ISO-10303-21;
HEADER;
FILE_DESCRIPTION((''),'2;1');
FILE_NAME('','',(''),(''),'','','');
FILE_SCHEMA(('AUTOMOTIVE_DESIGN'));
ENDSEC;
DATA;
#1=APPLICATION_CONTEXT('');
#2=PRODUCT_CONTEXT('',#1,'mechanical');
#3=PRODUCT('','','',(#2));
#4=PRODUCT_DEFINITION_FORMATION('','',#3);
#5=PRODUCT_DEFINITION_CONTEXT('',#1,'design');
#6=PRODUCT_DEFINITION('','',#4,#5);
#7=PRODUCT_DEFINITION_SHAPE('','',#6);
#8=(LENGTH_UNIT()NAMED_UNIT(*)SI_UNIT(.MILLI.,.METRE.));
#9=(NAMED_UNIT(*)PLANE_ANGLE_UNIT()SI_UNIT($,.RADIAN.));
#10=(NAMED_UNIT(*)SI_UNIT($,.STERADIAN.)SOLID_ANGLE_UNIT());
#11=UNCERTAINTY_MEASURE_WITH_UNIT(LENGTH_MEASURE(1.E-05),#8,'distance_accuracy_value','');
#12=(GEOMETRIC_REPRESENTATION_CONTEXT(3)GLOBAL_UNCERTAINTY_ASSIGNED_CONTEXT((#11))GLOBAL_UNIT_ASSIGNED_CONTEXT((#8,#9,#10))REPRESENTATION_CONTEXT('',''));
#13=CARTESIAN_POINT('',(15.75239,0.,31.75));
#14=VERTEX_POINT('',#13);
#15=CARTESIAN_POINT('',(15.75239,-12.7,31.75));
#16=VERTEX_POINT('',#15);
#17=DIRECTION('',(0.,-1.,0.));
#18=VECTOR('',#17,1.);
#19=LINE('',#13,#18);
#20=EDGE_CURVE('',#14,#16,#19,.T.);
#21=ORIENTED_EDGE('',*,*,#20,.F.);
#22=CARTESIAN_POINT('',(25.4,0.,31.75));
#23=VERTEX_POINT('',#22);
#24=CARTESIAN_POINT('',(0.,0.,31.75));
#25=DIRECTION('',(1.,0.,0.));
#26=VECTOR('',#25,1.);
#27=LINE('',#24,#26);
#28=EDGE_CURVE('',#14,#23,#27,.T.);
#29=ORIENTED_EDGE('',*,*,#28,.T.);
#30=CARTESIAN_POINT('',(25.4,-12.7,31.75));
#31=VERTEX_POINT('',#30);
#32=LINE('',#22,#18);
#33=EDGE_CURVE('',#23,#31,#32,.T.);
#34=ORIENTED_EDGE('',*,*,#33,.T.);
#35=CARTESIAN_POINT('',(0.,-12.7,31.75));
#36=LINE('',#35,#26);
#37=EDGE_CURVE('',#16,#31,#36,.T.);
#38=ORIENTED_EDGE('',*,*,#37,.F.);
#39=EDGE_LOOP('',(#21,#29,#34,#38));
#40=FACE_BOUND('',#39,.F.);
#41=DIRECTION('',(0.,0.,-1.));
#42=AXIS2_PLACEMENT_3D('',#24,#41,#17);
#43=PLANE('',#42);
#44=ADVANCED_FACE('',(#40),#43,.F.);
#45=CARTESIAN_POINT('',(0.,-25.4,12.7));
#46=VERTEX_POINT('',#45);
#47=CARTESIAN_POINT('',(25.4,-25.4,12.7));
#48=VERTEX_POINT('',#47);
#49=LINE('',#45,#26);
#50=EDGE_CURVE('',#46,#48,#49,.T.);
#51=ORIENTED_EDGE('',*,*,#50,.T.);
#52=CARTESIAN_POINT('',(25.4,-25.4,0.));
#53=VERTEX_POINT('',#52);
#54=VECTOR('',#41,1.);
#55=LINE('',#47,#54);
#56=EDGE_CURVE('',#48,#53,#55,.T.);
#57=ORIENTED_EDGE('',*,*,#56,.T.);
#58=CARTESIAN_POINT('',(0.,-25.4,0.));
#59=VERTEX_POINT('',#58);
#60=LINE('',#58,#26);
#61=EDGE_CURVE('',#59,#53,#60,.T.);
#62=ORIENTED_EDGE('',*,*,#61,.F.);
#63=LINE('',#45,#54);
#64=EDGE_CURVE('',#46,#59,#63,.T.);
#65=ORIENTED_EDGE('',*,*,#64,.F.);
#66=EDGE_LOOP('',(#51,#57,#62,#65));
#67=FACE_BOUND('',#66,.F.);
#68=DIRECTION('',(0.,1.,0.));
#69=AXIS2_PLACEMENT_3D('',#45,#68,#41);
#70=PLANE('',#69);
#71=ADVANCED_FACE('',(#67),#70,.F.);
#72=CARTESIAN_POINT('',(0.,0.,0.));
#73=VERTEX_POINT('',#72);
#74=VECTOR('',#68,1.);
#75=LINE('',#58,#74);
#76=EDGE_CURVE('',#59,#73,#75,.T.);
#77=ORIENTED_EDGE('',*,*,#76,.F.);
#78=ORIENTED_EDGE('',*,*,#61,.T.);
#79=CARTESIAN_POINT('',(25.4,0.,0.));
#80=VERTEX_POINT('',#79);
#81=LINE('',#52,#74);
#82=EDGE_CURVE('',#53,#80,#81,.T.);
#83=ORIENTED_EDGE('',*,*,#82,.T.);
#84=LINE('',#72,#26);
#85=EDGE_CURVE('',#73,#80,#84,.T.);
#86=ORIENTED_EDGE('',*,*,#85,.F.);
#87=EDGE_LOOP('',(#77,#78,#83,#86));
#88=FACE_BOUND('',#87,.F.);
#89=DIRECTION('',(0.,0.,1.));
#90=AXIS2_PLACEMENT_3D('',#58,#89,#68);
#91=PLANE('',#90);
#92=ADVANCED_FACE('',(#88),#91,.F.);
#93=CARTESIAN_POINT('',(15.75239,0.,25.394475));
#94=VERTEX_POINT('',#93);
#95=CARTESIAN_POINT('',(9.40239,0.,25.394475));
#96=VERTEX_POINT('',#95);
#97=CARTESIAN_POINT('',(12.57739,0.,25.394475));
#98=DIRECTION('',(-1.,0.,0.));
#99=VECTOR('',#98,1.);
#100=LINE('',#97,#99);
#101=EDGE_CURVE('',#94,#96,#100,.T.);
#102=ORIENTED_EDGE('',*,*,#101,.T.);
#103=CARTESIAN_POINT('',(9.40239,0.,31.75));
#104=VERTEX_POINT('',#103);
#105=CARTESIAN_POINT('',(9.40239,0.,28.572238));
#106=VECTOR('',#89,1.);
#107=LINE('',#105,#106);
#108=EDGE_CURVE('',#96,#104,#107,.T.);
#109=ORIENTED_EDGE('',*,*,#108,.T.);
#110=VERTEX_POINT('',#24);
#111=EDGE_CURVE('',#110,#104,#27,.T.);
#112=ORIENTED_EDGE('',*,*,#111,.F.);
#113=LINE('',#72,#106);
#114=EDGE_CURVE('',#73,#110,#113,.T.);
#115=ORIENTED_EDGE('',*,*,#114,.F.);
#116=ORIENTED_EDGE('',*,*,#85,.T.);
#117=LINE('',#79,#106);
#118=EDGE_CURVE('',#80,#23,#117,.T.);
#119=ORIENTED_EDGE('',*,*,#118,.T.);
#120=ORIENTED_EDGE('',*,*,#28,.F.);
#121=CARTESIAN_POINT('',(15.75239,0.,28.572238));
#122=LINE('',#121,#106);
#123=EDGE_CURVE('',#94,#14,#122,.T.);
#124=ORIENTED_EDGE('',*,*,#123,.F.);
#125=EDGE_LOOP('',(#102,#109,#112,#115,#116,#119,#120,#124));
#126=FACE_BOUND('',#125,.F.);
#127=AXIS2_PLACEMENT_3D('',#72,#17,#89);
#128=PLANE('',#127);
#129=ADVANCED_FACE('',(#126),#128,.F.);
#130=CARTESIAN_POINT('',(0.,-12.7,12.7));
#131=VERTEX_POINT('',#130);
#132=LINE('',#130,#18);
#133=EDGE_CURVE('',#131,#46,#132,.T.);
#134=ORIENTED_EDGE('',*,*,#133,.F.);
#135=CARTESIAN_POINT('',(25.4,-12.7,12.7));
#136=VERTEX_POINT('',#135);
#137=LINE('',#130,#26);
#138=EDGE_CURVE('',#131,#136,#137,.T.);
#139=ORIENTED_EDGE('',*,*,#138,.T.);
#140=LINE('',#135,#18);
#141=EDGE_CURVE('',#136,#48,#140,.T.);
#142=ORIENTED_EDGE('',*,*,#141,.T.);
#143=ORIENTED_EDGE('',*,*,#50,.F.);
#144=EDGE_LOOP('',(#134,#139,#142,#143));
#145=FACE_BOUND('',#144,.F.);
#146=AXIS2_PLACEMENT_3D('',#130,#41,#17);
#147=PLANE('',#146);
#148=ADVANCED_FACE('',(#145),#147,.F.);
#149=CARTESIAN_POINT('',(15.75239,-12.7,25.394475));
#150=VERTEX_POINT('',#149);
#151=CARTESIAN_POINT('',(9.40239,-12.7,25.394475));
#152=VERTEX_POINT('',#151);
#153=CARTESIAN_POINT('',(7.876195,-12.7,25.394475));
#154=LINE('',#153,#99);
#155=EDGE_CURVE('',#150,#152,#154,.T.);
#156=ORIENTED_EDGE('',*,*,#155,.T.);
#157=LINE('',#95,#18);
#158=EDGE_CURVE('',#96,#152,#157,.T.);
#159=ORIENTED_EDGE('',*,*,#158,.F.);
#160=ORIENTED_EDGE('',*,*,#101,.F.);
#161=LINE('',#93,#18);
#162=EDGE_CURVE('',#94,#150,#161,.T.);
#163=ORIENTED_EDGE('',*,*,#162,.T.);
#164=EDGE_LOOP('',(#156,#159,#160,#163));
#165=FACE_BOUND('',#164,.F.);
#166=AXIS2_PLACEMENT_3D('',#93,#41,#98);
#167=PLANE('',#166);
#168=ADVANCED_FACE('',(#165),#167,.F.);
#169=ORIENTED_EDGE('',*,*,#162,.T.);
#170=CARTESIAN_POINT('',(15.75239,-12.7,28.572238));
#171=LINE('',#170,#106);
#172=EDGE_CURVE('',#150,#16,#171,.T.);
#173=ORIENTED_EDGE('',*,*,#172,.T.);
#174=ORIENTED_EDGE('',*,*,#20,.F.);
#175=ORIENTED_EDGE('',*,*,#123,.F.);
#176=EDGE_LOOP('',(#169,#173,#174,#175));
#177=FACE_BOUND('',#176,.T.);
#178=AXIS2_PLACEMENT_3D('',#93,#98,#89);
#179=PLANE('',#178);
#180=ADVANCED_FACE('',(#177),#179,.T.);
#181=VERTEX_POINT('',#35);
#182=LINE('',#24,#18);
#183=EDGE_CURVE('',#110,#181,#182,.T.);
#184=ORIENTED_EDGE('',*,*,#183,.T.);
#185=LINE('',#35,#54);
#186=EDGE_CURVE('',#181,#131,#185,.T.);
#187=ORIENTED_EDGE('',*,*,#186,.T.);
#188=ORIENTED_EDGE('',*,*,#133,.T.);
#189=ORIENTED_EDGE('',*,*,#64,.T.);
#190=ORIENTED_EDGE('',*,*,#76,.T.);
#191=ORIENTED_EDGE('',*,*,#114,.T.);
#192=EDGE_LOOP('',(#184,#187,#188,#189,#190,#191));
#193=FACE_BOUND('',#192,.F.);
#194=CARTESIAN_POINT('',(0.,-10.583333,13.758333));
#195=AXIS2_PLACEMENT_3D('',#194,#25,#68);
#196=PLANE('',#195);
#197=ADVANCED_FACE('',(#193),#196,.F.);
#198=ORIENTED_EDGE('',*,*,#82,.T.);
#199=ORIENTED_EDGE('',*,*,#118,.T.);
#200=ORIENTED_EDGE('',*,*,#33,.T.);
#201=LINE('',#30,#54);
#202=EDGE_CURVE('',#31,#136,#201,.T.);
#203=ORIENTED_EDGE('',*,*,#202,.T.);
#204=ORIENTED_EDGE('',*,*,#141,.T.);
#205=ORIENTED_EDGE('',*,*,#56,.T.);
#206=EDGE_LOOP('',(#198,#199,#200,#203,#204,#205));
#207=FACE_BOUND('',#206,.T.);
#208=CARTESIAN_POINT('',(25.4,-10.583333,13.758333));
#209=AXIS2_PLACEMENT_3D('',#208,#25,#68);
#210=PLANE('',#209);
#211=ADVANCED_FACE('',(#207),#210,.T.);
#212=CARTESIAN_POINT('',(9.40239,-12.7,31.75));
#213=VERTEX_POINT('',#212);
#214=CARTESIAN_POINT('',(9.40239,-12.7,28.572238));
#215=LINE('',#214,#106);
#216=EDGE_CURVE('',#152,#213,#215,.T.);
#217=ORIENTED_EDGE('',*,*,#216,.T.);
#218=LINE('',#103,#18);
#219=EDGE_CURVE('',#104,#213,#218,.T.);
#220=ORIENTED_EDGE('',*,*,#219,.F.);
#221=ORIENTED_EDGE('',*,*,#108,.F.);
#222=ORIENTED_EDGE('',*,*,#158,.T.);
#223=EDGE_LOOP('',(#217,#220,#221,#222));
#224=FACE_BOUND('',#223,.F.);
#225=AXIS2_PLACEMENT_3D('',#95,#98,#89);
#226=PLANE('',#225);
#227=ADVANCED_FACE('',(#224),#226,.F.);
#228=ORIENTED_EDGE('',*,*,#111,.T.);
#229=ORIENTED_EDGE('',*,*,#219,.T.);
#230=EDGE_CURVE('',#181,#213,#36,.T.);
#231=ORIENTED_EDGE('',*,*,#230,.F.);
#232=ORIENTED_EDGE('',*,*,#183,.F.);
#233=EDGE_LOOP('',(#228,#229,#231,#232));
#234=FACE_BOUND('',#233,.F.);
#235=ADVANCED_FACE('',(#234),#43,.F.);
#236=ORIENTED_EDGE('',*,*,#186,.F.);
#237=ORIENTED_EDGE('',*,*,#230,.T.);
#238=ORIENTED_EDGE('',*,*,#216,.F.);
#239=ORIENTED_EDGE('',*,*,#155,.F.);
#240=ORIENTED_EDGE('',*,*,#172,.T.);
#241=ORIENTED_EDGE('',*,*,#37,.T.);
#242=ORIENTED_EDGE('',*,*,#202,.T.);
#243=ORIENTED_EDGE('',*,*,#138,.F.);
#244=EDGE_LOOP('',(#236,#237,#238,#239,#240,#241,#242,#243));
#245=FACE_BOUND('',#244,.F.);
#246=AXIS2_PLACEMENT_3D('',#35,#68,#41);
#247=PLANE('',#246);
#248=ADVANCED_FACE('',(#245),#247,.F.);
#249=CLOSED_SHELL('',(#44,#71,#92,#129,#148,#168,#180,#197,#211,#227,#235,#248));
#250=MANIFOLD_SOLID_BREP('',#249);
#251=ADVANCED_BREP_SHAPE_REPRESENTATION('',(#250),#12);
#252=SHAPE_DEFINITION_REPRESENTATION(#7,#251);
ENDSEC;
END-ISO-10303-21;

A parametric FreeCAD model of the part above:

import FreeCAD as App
import Part
import Sketcher
from FreeCAD import Vector
Q = App.Units.Quantity


def add_polygon(sketch, points):
    """Adds a closed chain of lines whose ends are joined by coincident constraints."""
    first, n = sketch.GeometryCount, len(points)
    for a, b in zip(points, points[1:] + points[:1]):
        sketch.addGeometry(Part.LineSegment(App.Vector(*a, 0), App.Vector(*b, 0)), False)
    for i in range(n):
        sketch.addConstraint(Sketcher.Constraint("Coincident", first + i, 2, first + (i + 1) % n, 1))

doc = App.newDocument("Part")
body = doc.addObject("PartDesign::Body", "Body")

# Sketch on YZ plane
sketch1 = body.newObject("Sketcher::SketchObject", "Sketch")
sketch1.AttachmentSupport = (doc.getObject("YZ_Plane"), [""])
sketch1.MapMode = "FlatFace"
add_polygon(sketch1, [(-25, 0), (0, 0), (0, 32), (-13, 32), (-13, 13), (-25, 13)])  # lines 0-5
sketch1.addConstraint([
    Sketcher.Constraint("Horizontal", 0),
    Sketcher.Constraint("Vertical", 1),
    Sketcher.Constraint("Horizontal", 2),
    Sketcher.Constraint("Vertical", 3),
    Sketcher.Constraint("Horizontal", 4),
    Sketcher.Constraint("Vertical", 5),
    Sketcher.Constraint("Coincident", 0, 2, -1, 1),
    Sketcher.Constraint("Equal", 2, 4),
    Sketcher.Constraint("Equal", 4, 5),
    Sketcher.Constraint("DistanceX", 0, 1, 0, 2, Q("1 in")),
    Sketcher.Constraint("DistanceY", 1, 1, 1, 2, Q("1.25 in")),
])
pad1 = body.newObject("PartDesign::Pad", "Pad")
pad1.Profile = sketch1
pad1.Length = Q("1 in")

# Sketch on XZ plane
sketch2 = body.newObject("Sketcher::SketchObject", "Sketch001")
sketch2.AttachmentSupport = (doc.getObject("XZ_Plane"), [""])
sketch2.MapMode = "FlatFace"
add_polygon(sketch2, [(16, 32), (16, 25), (9, 25), (9, 32)])  # lines 0-3
sketch2.addConstraint([
    Sketcher.Constraint("Vertical", 0),
    Sketcher.Constraint("Horizontal", 1),
    Sketcher.Constraint("Vertical", 2),
    Sketcher.Constraint("Horizontal", 3),
    Sketcher.Constraint("DistanceX", 1, 2, 1, 1, Q("0.25 in")),
    Sketcher.Constraint("DistanceY", -1, 1, 2, 2, Q("1.25 in")),
    Sketcher.Constraint("DistanceY", 0, 2, 0, 1, Q("6.355525 mm")),
    Sketcher.Constraint("DistanceX", -1, 1, 0, 2, Q("15.75239 mm")),
])
pocket1 = body.newObject("PartDesign::Pocket", "Pocket")
pocket1.Profile = sketch2
pocket1.Type = "ThroughAll"
pocket1.Reversed = True

doc.recompute()
